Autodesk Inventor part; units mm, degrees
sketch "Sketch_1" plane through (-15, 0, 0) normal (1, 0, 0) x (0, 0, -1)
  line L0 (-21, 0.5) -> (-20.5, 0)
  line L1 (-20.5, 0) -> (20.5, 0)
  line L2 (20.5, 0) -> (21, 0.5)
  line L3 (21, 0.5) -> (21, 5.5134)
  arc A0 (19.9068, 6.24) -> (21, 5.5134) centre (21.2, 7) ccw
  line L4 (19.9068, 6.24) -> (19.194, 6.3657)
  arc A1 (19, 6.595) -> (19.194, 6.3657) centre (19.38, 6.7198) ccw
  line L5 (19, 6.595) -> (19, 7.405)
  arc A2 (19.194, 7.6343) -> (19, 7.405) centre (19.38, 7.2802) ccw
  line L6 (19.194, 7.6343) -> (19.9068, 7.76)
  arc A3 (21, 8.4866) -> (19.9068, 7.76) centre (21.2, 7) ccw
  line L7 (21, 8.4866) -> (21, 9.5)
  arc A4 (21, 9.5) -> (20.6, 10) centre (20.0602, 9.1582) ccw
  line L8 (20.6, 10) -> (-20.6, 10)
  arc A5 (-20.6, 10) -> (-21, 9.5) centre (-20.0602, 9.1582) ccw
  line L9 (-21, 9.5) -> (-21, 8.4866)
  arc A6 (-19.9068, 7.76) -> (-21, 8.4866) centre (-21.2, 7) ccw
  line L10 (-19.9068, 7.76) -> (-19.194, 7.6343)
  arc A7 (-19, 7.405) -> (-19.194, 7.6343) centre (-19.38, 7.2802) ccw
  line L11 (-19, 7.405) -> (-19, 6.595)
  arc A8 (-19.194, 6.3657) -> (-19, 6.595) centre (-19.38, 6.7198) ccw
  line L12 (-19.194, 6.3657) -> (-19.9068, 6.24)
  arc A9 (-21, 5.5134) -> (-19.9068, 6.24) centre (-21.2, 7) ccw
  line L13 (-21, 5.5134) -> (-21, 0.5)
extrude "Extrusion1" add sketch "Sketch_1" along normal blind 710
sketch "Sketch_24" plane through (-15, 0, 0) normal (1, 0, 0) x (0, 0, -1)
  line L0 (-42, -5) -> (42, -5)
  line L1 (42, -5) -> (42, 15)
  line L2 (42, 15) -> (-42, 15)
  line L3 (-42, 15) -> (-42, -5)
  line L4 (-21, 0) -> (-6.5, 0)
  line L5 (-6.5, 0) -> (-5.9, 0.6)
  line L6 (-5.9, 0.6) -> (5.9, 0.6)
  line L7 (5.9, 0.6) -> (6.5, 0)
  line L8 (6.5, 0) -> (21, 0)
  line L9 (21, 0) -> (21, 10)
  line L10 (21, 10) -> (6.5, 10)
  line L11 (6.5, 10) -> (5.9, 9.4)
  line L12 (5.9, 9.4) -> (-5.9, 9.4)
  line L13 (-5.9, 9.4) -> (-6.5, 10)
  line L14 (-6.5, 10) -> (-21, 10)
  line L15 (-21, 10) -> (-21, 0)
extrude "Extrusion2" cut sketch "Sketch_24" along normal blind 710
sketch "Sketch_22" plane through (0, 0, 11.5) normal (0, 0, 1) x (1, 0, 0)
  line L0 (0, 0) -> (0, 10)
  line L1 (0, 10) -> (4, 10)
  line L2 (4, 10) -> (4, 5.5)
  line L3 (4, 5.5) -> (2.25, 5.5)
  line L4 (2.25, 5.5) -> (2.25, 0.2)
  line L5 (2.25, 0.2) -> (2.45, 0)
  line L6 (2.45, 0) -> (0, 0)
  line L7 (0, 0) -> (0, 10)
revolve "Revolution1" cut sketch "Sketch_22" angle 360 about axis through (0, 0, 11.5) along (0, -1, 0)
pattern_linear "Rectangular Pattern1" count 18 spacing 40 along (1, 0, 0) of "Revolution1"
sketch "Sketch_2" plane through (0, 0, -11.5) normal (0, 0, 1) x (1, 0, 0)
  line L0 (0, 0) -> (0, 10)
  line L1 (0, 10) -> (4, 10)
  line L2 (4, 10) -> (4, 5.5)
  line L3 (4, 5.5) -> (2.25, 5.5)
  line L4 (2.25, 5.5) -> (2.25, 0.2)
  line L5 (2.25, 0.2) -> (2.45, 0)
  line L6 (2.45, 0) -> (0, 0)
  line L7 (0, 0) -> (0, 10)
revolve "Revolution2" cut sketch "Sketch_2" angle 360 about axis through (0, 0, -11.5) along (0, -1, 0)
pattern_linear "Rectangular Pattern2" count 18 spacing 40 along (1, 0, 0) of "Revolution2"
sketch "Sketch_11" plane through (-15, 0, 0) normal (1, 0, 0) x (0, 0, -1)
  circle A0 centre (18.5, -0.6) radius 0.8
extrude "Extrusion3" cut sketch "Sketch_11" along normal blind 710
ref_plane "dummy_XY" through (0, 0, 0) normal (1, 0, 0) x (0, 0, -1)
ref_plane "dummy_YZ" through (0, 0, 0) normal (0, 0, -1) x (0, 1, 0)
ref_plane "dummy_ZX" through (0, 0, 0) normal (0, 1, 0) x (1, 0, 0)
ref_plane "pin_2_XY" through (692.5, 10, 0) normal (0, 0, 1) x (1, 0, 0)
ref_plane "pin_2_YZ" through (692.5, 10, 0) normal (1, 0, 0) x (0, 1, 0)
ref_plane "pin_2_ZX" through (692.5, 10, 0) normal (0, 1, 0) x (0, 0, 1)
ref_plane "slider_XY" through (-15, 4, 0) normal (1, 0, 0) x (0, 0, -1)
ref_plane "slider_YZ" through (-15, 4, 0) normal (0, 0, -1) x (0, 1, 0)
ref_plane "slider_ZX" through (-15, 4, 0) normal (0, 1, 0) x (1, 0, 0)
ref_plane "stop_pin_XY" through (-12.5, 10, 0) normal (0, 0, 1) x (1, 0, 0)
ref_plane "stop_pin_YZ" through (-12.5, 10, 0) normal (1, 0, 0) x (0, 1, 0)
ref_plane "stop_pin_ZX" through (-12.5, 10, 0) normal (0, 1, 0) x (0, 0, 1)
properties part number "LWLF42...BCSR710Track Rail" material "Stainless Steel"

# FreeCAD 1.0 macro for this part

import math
import FreeCAD as App
import Part
import Sketcher
from FreeCAD import Vector
Q = App.Units.Quantity

doc = App.newDocument("Part")
body = doc.addObject("PartDesign::Body", "Body")

sketch1 = body.newObject("Sketcher::SketchObject", "Sketch")
sketch1.AttachmentSupport = (doc.getObject("YZ_Plane"), [""])
sketch1.MapMode = "FlatFace"
sketch1.AttachmentOffset = App.Placement(Vector(0, 0, -15), App.Rotation())
sketch1.addGeometry(Part.LineSegment(Vector(5.5134, 21, 0), Vector(0.5, 21, 0)), False)
sketch1.addGeometry(Part.LineSegment(Vector(0.5, 21, 0), Vector(0, 20.5, 0)), False)
sketch1.addGeometry(Part.LineSegment(Vector(0, 20.5, 0), Vector(0, -20.5, 0)), False)
sketch1.addGeometry(Part.LineSegment(Vector(0, -20.5, 0), Vector(0.5, -21, 0)), False)
sketch1.addGeometry(Part.LineSegment(Vector(0.5, -21, 0), Vector(5.5134, -21, 0)), False)
sketch1.addGeometry(Part.ArcOfCircle(Part.Circle(Vector(7, -21.2, 0), Vector(0, 0, 1), 1.499993), math.radians(120.442305), math.radians(172.337709)), False)
sketch1.addGeometry(Part.LineSegment(Vector(6.24, -19.9068, 0), Vector(6.3657, -19.194, 0)), False)
sketch1.addGeometry(Part.ArcOfCircle(Part.Circle(Vector(6.7198, -19.38, 0), Vector(0, 0, 1), 0.399969), math.radians(108.181269), math.radians(152.288161)), False)
sketch1.addGeometry(Part.LineSegment(Vector(6.595, -19, 0), Vector(7.405, -19, 0)), False)
sketch1.addGeometry(Part.ArcOfCircle(Part.Circle(Vector(7.2802, -19.38, 0), Vector(0, 0, 1), 0.399979), math.radians(27.711839), math.radians(71.818731)), False)
sketch1.addGeometry(Part.LineSegment(Vector(7.6343, -19.194, 0), Vector(7.76, -19.9068, 0)), False)
sketch1.addGeometry(Part.ArcOfCircle(Part.Circle(Vector(7, -21.2, 0), Vector(0, 0, 1), 1.499989), math.radians(7.662291), math.radians(59.557695)), False)
sketch1.addGeometry(Part.LineSegment(Vector(8.4866, -21, 0), Vector(9.5, -21, 0)), False)
sketch1.addGeometry(Part.ArcOfCircle(Part.Circle(Vector(9.1582, -20.0602, 0), Vector(0, 0, 1), 1.000026), math.radians(-70.013956), math.radians(-32.669818)), False)
sketch1.addGeometry(Part.LineSegment(Vector(10, -20.6, 0), Vector(10, 20.6, 0)), False)
sketch1.addGeometry(Part.ArcOfCircle(Part.Circle(Vector(9.1582, 20.0602, 0), Vector(0, 0, 1), 1.000006), math.radians(32.669818), math.radians(70.013956)), False)
sketch1.addGeometry(Part.LineSegment(Vector(9.5, 21, 0), Vector(8.4866, 21, 0)), False)
sketch1.addGeometry(Part.ArcOfCircle(Part.Circle(Vector(7, 21.2, 0), Vector(0, 0, 1), 1.499993), math.radians(-59.557695), math.radians(-7.662291)), False)
sketch1.addGeometry(Part.LineSegment(Vector(7.76, 19.9068, 0), Vector(7.6343, 19.194, 0)), False)
sketch1.addGeometry(Part.ArcOfCircle(Part.Circle(Vector(7.2802, 19.38, 0), Vector(0, 0, 1), 0.399969), math.radians(-71.818731), math.radians(-27.711839)), False)
sketch1.addGeometry(Part.LineSegment(Vector(7.405, 19, 0), Vector(6.595, 19, 0)), False)
sketch1.addGeometry(Part.ArcOfCircle(Part.Circle(Vector(6.7198, 19.38, 0), Vector(0, 0, 1), 0.399979), math.radians(-152.288161), math.radians(-108.181269)), False)
sketch1.addGeometry(Part.LineSegment(Vector(6.3657, 19.194, 0), Vector(6.24, 19.9068, 0)), False)
sketch1.addGeometry(Part.ArcOfCircle(Part.Circle(Vector(7, 21.2, 0), Vector(0, 0, 1), 1.499989), math.radians(-172.337709), math.radians(-120.442305)), False)
sketch1.addConstraint(Sketcher.Constraint("Coincident", 0, 2, 1, 1))
sketch1.addConstraint(Sketcher.Constraint("Coincident", 1, 2, 2, 1))
sketch1.addConstraint(Sketcher.Constraint("Coincident", 2, 2, 3, 1))
sketch1.addConstraint(Sketcher.Constraint("Coincident", 3, 2, 4, 1))
sketch1.addConstraint(Sketcher.Constraint("Coincident", 4, 2, 5, 2))
sketch1.addConstraint(Sketcher.Constraint("Coincident", 5, 1, 6, 1))
sketch1.addConstraint(Sketcher.Constraint("Coincident", 6, 2, 7, 2))
sketch1.addConstraint(Sketcher.Constraint("Coincident", 7, 1, 8, 1))
sketch1.addConstraint(Sketcher.Constraint("Coincident", 8, 2, 9, 2))
sketch1.addConstraint(Sketcher.Constraint("Coincident", 9, 1, 10, 1))
sketch1.addConstraint(Sketcher.Constraint("Coincident", 10, 2, 11, 2))
sketch1.addConstraint(Sketcher.Constraint("Coincident", 11, 1, 12, 1))
sketch1.addConstraint(Sketcher.Constraint("Coincident", 12, 2, 13, 1))
sketch1.addConstraint(Sketcher.Constraint("Coincident", 13, 2, 14, 1))
sketch1.addConstraint(Sketcher.Constraint("Coincident", 14, 2, 15, 1))
sketch1.addConstraint(Sketcher.Constraint("Coincident", 15, 2, 16, 1))
sketch1.addConstraint(Sketcher.Constraint("Coincident", 16, 2, 17, 2))
sketch1.addConstraint(Sketcher.Constraint("Coincident", 17, 1, 18, 1))
sketch1.addConstraint(Sketcher.Constraint("Coincident", 18, 2, 19, 2))
sketch1.addConstraint(Sketcher.Constraint("Coincident", 19, 1, 20, 1))
sketch1.addConstraint(Sketcher.Constraint("Coincident", 20, 2, 21, 2))
sketch1.addConstraint(Sketcher.Constraint("Coincident", 21, 1, 22, 1))
sketch1.addConstraint(Sketcher.Constraint("Coincident", 22, 2, 23, 2))
sketch1.addConstraint(Sketcher.Constraint("Coincident", 23, 1, 0, 1))
sketch1.addConstraint(Sketcher.Constraint("Horizontal", 0))
sketch1.addConstraint(Sketcher.Constraint("Vertical", 2))
sketch1.addConstraint(Sketcher.Constraint("Horizontal", 4))
sketch1.addConstraint(Sketcher.Constraint("Horizontal", 8))
sketch1.addConstraint(Sketcher.Constraint("Horizontal", 12))
sketch1.addConstraint(Sketcher.Constraint("Vertical", 14))
sketch1.addConstraint(Sketcher.Constraint("Horizontal", 16))
sketch1.addConstraint(Sketcher.Constraint("Horizontal", 20))
sketch1.addConstraint(Sketcher.Constraint("Coincident", 11, 3, 5, 3))
sketch1.addConstraint(Sketcher.Constraint("Coincident", 23, 3, 17, 3))
sketch1.addConstraint(Sketcher.Constraint("Equal", 7, 9))
sketch1.addConstraint(Sketcher.Constraint("Equal", 5, 11))
sketch1.addConstraint(Sketcher.Constraint("Equal", 13, 15))
sketch1.addConstraint(Sketcher.Constraint("Equal", 11, 17))
sketch1.addConstraint(Sketcher.Constraint("Equal", 9, 19))
sketch1.addConstraint(Sketcher.Constraint("Equal", 19, 21))
sketch1.addConstraint(Sketcher.Constraint("Equal", 17, 23))
sketch1.addConstraint(Sketcher.Constraint("Symmetric", 1, 2, 2, 2, -1, 1))
sketch1.addConstraint(Sketcher.Constraint("Symmetric", 13, 3, 15, 3, -1))
sketch1.addConstraint(Sketcher.Constraint("Symmetric", 5, 3, 17, 3, -1))
sketch1.addConstraint(Sketcher.Constraint("Symmetric", 9, 3, 19, 3, -1))
sketch1.addConstraint(Sketcher.Constraint("Symmetric", 7, 3, 21, 3, -1))
sketch1.addConstraint(Sketcher.Constraint("Symmetric", 0, 2, 3, 2, -1))
sketch1.addConstraint(Sketcher.Constraint("Perpendicular", 1, 3))
sketch1.addConstraint(Sketcher.Constraint("Parallel", 6, 18))
sketch1.addConstraint(Sketcher.Constraint("Parallel", 10, 22))
sketch1.addConstraint(Sketcher.Constraint("Horizontal", 7, 3, 9, 3))
sketch1.addConstraint(Sketcher.Constraint("Horizontal", 6, 2, 9, 1))
sketch1.addConstraint(Sketcher.Constraint("Horizontal", 5, 1, 10, 2))
sketch1.addConstraint(Sketcher.Constraint("Horizontal", 4, 2, 11, 1))
sketch1.addConstraint(Sketcher.Constraint("Horizontal", 0, 2, 15, 2))
sketch1.addConstraint(Sketcher.Constraint("Horizontal", 18, 2, 21, 1))
sketch1.addConstraint(Sketcher.Constraint("Horizontal", 17, 1, 22, 2))
sketch1.addConstraint(Sketcher.Constraint("Vertical", 10, 2, 17, 1))
sketch1.addConstraint(Sketcher.Constraint("Vertical", 8, 2, 19, 1))
sketch1.addConstraint(Sketcher.Constraint("Radius", 13, 1.0))
sketch1.addConstraint(Sketcher.Constraint("Radius", 5, 1.5))
sketch1.addConstraint(Sketcher.Constraint("Radius", 7, 0.4))
sketch1.addConstraint(Sketcher.Constraint("DistanceY", 2, 2, 2, 1, 41.0))
sketch1.addConstraint(Sketcher.Constraint("Angle", 6, Q("79.999 deg")))
sketch1.addConstraint(Sketcher.Constraint("DistanceY", 14, 1, 14, 2, 41.2))
sketch1.addConstraint(Sketcher.Constraint("DistanceX", -1, 1, 5, 3, 7.0))
sketch1.addConstraint(Sketcher.Constraint("DistanceY", -1, 1, 0, 2, 21.0))
sketch1.addConstraint(Sketcher.Constraint("DistanceY", 7, 1, -1, 1, 19.0))
sketch1.addConstraint(Sketcher.Constraint("DistanceX", -1, 1, 13, 2, 10.0))
sketch1.addConstraint(Sketcher.Constraint("DistanceX", 8, 1, 8, 2, 0.81))
sketch1.addConstraint(Sketcher.Constraint("DistanceY", 5, 3, -1, 1, 21.2))
sketch1.addConstraint(Sketcher.Constraint("DistanceX", -1, 1, 12, 2, 9.5))
sketch1.addConstraint(Sketcher.Constraint("DistanceY", 7, 3, -1, 1, 19.38))
sketch1.addConstraint(Sketcher.Constraint("DistanceX", -1, 1, 5, 1, 6.24))
pad1 = body.newObject("PartDesign::Pad", "Pad")
pad1.Profile = sketch1
pad1.Length = 710

sketch2 = body.newObject("Sketcher::SketchObject", "Sketch001")
sketch2.AttachmentSupport = (doc.getObject("YZ_Plane"), [""])
sketch2.MapMode = "FlatFace"
sketch2.AttachmentOffset = App.Placement(Vector(0, 0, -15), App.Rotation())
sketch2.addGeometry(Part.LineSegment(Vector(15, 42, 0), Vector(-5, 42, 0)), False)
sketch2.addGeometry(Part.LineSegment(Vector(-5, 42, 0), Vector(-5, -42, 0)), False)
sketch2.addGeometry(Part.LineSegment(Vector(-5, -42, 0), Vector(15, -42, 0)), False)
sketch2.addGeometry(Part.LineSegment(Vector(15, -42, 0), Vector(15, 42, 0)), False)
sketch2.addGeometry(Part.LineSegment(Vector(0, 6.5, 0), Vector(0, 21, 0)), False)
sketch2.addGeometry(Part.LineSegment(Vector(0, 21, 0), Vector(10, 21, 0)), False)
sketch2.addGeometry(Part.LineSegment(Vector(10, 21, 0), Vector(10, 6.5, 0)), False)
sketch2.addGeometry(Part.LineSegment(Vector(10, 6.5, 0), Vector(9.4, 5.9, 0)), False)
sketch2.addGeometry(Part.LineSegment(Vector(9.4, 5.9, 0), Vector(9.4, -5.9, 0)), False)
sketch2.addGeometry(Part.LineSegment(Vector(9.4, -5.9, 0), Vector(10, -6.5, 0)), False)
sketch2.addGeometry(Part.LineSegment(Vector(10, -6.5, 0), Vector(10, -21, 0)), False)
sketch2.addGeometry(Part.LineSegment(Vector(10, -21, 0), Vector(0, -21, 0)), False)
sketch2.addGeometry(Part.LineSegment(Vector(0, -21, 0), Vector(0, -6.5, 0)), False)
sketch2.addGeometry(Part.LineSegment(Vector(0, -6.5, 0), Vector(0.6, -5.9, 0)), False)
sketch2.addGeometry(Part.LineSegment(Vector(0.6, -5.9, 0), Vector(0.6, 5.9, 0)), False)
sketch2.addGeometry(Part.LineSegment(Vector(0.6, 5.9, 0), Vector(0, 6.5, 0)), False)
sketch2.addConstraint(Sketcher.Constraint("Coincident", 0, 2, 1, 1))
sketch2.addConstraint(Sketcher.Constraint("Coincident", 1, 2, 2, 1))
sketch2.addConstraint(Sketcher.Constraint("Coincident", 2, 2, 3, 1))
sketch2.addConstraint(Sketcher.Constraint("Coincident", 3, 2, 0, 1))
sketch2.addConstraint(Sketcher.Constraint("Coincident", 4, 2, 5, 1))
sketch2.addConstraint(Sketcher.Constraint("Coincident", 5, 2, 6, 1))
sketch2.addConstraint(Sketcher.Constraint("Coincident", 6, 2, 7, 1))
sketch2.addConstraint(Sketcher.Constraint("Coincident", 7, 2, 8, 1))
sketch2.addConstraint(Sketcher.Constraint("Coincident", 8, 2, 9, 1))
sketch2.addConstraint(Sketcher.Constraint("Coincident", 9, 2, 10, 1))
sketch2.addConstraint(Sketcher.Constraint("Coincident", 10, 2, 11, 1))
sketch2.addConstraint(Sketcher.Constraint("Coincident", 11, 2, 12, 1))
sketch2.addConstraint(Sketcher.Constraint("Coincident", 12, 2, 13, 1))
sketch2.addConstraint(Sketcher.Constraint("Coincident", 13, 2, 14, 1))
sketch2.addConstraint(Sketcher.Constraint("Coincident", 14, 2, 15, 1))
sketch2.addConstraint(Sketcher.Constraint("Coincident", 15, 2, 4, 1))
sketch2.addConstraint(Sketcher.Constraint("Horizontal", 0))
sketch2.addConstraint(Sketcher.Constraint("Vertical", 1))
sketch2.addConstraint(Sketcher.Constraint("Horizontal", 2))
sketch2.addConstraint(Sketcher.Constraint("Vertical", 3))
sketch2.addConstraint(Sketcher.Constraint("Vertical", 4))
sketch2.addConstraint(Sketcher.Constraint("Horizontal", 5))
sketch2.addConstraint(Sketcher.Constraint("Vertical", 6))
sketch2.addConstraint(Sketcher.Constraint("Vertical", 8))
sketch2.addConstraint(Sketcher.Constraint("Vertical", 10))
sketch2.addConstraint(Sketcher.Constraint("Horizontal", 11))
sketch2.addConstraint(Sketcher.Constraint("Vertical", 12))
sketch2.addConstraint(Sketcher.Constraint("Vertical", 14))
sketch2.addConstraint(Sketcher.Constraint("Symmetric", 4, 2, 11, 2, -1, 1))
sketch2.addConstraint(Sketcher.Constraint("Symmetric", 6, 2, 9, 2, -1))
sketch2.addConstraint(Sketcher.Constraint("Symmetric", 12, 2, 15, 2, -1))
sketch2.addConstraint(Sketcher.Constraint("Perpendicular", 7, 9))
sketch2.addConstraint(Sketcher.Constraint("Perpendicular", 9, 13))
sketch2.addConstraint(Sketcher.Constraint("Perpendicular", 13, 15))
sketch2.addConstraint(Sketcher.Constraint("Horizontal", 9, 2, 12, 2))
sketch2.addConstraint(Sketcher.Constraint("Horizontal", 8, 2, 13, 2))
sketch2.addConstraint(Sketcher.Constraint("Horizontal", 7, 2, 14, 2))
sketch2.addConstraint(Sketcher.Constraint("DistanceX", 0, 2, 0, 1, 20.0))
sketch2.addConstraint(Sketcher.Constraint("DistanceX", 5, 1, 5, 2, 10.0))
sketch2.addConstraint(Sketcher.Constraint("DistanceY", 1, 2, 1, 1, 84.0))
sketch2.addConstraint(Sketcher.Constraint("DistanceY", 4, 1, 4, 2, 14.5))
sketch2.addConstraint(Sketcher.Constraint("DistanceY", 8, 2, 8, 1, 11.8))
sketch2.addConstraint(Sketcher.Constraint("DistanceX", 0, 2, -1, 1, 5.0))
sketch2.addConstraint(Sketcher.Constraint("DistanceY", -1, 1, 0, 2, 42.0))
sketch2.addConstraint(Sketcher.Constraint("DistanceY", -1, 1, 4, 2, 21.0))
pocket1 = body.newObject("PartDesign::Pocket", "Pocket")
pocket1.Profile = sketch2
pocket1.Length = 710
pocket1.Reversed = True

sketch3 = body.newObject("Sketcher::SketchObject", "Sketch002")
sketch3.AttachmentSupport = (doc.getObject("XY_Plane"), [""])
sketch3.MapMode = "FlatFace"
sketch3.AttachmentOffset = App.Placement(Vector(0, 0, 11.5), App.Rotation())
sketch3.addGeometry(Part.LineSegment(Vector(0, 10, 0), Vector(0, 0, 0)), False)
sketch3.addGeometry(Part.LineSegment(Vector(0, 0, 0), Vector(2.45, 0, 0)), False)
sketch3.addGeometry(Part.LineSegment(Vector(2.45, 0, 0), Vector(2.25, 0.2, 0)), False)
sketch3.addGeometry(Part.LineSegment(Vector(2.25, 0.2, 0), Vector(2.25, 5.5, 0)), False)
sketch3.addGeometry(Part.LineSegment(Vector(2.25, 5.5, 0), Vector(4, 5.5, 0)), False)
sketch3.addGeometry(Part.LineSegment(Vector(4, 5.5, 0), Vector(4, 10, 0)), False)
sketch3.addGeometry(Part.LineSegment(Vector(4, 10, 0), Vector(0, 10, 0)), False)
sketch3.addConstraint(Sketcher.Constraint("Coincident", 0, 2, 1, 1))
sketch3.addConstraint(Sketcher.Constraint("Coincident", 1, 2, 2, 1))
sketch3.addConstraint(Sketcher.Constraint("Coincident", 2, 2, 3, 1))
sketch3.addConstraint(Sketcher.Constraint("Coincident", 3, 2, 4, 1))
sketch3.addConstraint(Sketcher.Constraint("Coincident", 4, 2, 5, 1))
sketch3.addConstraint(Sketcher.Constraint("Coincident", 5, 2, 6, 1))
sketch3.addConstraint(Sketcher.Constraint("Coincident", 6, 2, 0, 1))
sketch3.addConstraint(Sketcher.Constraint("Vertical", 0))
sketch3.addConstraint(Sketcher.Constraint("Horizontal", 1))
sketch3.addConstraint(Sketcher.Constraint("Vertical", 3))
sketch3.addConstraint(Sketcher.Constraint("Horizontal", 4))
sketch3.addConstraint(Sketcher.Constraint("Vertical", 5))
sketch3.addConstraint(Sketcher.Constraint("Horizontal", 6))
sketch3.addConstraint(Sketcher.Constraint("Coincident", 0, 2, -1, 1))
sketch3.addConstraint(Sketcher.Constraint("DistanceX", 6, 2, 6, 1, 4.0))
sketch3.addConstraint(Sketcher.Constraint("DistanceY", 0, 2, 0, 1, 10.0))
sketch3.addConstraint(Sketcher.Constraint("Angle", 2, Q("135 deg")))
sketch3.addConstraint(Sketcher.Constraint("DistanceY", 3, 1, 3, 2, 5.3))
sketch3.addConstraint(Sketcher.Constraint("DistanceY", 5, 1, 5, 2, 4.5))
sketch3.addConstraint(Sketcher.Constraint("DistanceX", 1, 1, 1, 2, 2.45))
groove = body.newObject("PartDesign::Groove", "Groove")
groove.Profile = sketch3
groove.ReferenceAxis = (sketch3, ["V_Axis"])
groove.Angle = 360
doc.recompute()

linearpattern = body.newObject("PartDesign::LinearPattern", "LinearPattern")
linearpattern.Originals = [groove]
linearpattern.Direction = (doc.getObject("X_Axis"), [""])
linearpattern.Mode = "offset"
linearpattern.Offset = 40
linearpattern.Occurrences = 18
body.Tip = linearpattern

sketch4 = body.newObject("Sketcher::SketchObject", "Sketch003")
sketch4.AttachmentSupport = (doc.getObject("XY_Plane"), [""])
sketch4.MapMode = "FlatFace"
sketch4.AttachmentOffset = App.Placement(Vector(0, 0, -11.5), App.Rotation())
sketch4.addGeometry(Part.LineSegment(Vector(0, 10, 0), Vector(0, 0, 0)), False)
sketch4.addGeometry(Part.LineSegment(Vector(0, 0, 0), Vector(2.45, 0, 0)), False)
sketch4.addGeometry(Part.LineSegment(Vector(2.45, 0, 0), Vector(2.25, 0.2, 0)), False)
sketch4.addGeometry(Part.LineSegment(Vector(2.25, 0.2, 0), Vector(2.25, 5.5, 0)), False)
sketch4.addGeometry(Part.LineSegment(Vector(2.25, 5.5, 0), Vector(4, 5.5, 0)), False)
sketch4.addGeometry(Part.LineSegment(Vector(4, 5.5, 0), Vector(4, 10, 0)), False)
sketch4.addGeometry(Part.LineSegment(Vector(4, 10, 0), Vector(0, 10, 0)), False)
sketch4.addConstraint(Sketcher.Constraint("Coincident", 0, 2, 1, 1))
sketch4.addConstraint(Sketcher.Constraint("Coincident", 1, 2, 2, 1))
sketch4.addConstraint(Sketcher.Constraint("Coincident", 2, 2, 3, 1))
sketch4.addConstraint(Sketcher.Constraint("Coincident", 3, 2, 4, 1))
sketch4.addConstraint(Sketcher.Constraint("Coincident", 4, 2, 5, 1))
sketch4.addConstraint(Sketcher.Constraint("Coincident", 5, 2, 6, 1))
sketch4.addConstraint(Sketcher.Constraint("Coincident", 6, 2, 0, 1))
sketch4.addConstraint(Sketcher.Constraint("Vertical", 0))
sketch4.addConstraint(Sketcher.Constraint("Horizontal", 1))
sketch4.addConstraint(Sketcher.Constraint("Vertical", 3))
sketch4.addConstraint(Sketcher.Constraint("Horizontal", 4))
sketch4.addConstraint(Sketcher.Constraint("Vertical", 5))
sketch4.addConstraint(Sketcher.Constraint("Horizontal", 6))
sketch4.addConstraint(Sketcher.Constraint("Coincident", 0, 2, -1, 1))
sketch4.addConstraint(Sketcher.Constraint("DistanceX", 6, 2, 6, 1, 4.0))
sketch4.addConstraint(Sketcher.Constraint("DistanceY", 0, 2, 0, 1, 10.0))
sketch4.addConstraint(Sketcher.Constraint("Angle", 2, Q("135 deg")))
sketch4.addConstraint(Sketcher.Constraint("DistanceY", 3, 1, 3, 2, 5.3))
sketch4.addConstraint(Sketcher.Constraint("DistanceY", 5, 1, 5, 2, 4.5))
sketch4.addConstraint(Sketcher.Constraint("DistanceX", 1, 1, 1, 2, 2.45))
groove2 = body.newObject("PartDesign::Groove", "Groove001")
groove2.Profile = sketch4
groove2.ReferenceAxis = (sketch4, ["V_Axis"])
groove2.Angle = 360
doc.recompute()

linearpattern2 = body.newObject("PartDesign::LinearPattern", "LinearPattern001")
linearpattern2.Originals = [groove2]
linearpattern2.Direction = (doc.getObject("X_Axis"), [""])
linearpattern2.Mode = "offset"
linearpattern2.Offset = 40
linearpattern2.Occurrences = 18
body.Tip = linearpattern2

sketch5 = body.newObject("Sketcher::SketchObject", "Sketch004")
sketch5.AttachmentSupport = (doc.getObject("YZ_Plane"), [""])
sketch5.MapMode = "FlatFace"
sketch5.AttachmentOffset = App.Placement(Vector(0, 0, -15), App.Rotation())
sketch5.addGeometry(Part.Circle(Vector(-0.6, -18.5, 0), Vector(0, 0, 1), 0.8), False)
sketch5.addConstraint(Sketcher.Constraint("Diameter", 0, 1.6))
sketch5.addConstraint(Sketcher.Constraint("DistanceX", 0, 3, -1, 1, 0.6))
sketch5.addConstraint(Sketcher.Constraint("DistanceY", 0, 3, -1, 1, 18.5))
pocket2 = body.newObject("PartDesign::Pocket", "Pocket001")
pocket2.Profile = sketch5
pocket2.Length = 710
pocket2.Reversed = True

doc.recompute()
